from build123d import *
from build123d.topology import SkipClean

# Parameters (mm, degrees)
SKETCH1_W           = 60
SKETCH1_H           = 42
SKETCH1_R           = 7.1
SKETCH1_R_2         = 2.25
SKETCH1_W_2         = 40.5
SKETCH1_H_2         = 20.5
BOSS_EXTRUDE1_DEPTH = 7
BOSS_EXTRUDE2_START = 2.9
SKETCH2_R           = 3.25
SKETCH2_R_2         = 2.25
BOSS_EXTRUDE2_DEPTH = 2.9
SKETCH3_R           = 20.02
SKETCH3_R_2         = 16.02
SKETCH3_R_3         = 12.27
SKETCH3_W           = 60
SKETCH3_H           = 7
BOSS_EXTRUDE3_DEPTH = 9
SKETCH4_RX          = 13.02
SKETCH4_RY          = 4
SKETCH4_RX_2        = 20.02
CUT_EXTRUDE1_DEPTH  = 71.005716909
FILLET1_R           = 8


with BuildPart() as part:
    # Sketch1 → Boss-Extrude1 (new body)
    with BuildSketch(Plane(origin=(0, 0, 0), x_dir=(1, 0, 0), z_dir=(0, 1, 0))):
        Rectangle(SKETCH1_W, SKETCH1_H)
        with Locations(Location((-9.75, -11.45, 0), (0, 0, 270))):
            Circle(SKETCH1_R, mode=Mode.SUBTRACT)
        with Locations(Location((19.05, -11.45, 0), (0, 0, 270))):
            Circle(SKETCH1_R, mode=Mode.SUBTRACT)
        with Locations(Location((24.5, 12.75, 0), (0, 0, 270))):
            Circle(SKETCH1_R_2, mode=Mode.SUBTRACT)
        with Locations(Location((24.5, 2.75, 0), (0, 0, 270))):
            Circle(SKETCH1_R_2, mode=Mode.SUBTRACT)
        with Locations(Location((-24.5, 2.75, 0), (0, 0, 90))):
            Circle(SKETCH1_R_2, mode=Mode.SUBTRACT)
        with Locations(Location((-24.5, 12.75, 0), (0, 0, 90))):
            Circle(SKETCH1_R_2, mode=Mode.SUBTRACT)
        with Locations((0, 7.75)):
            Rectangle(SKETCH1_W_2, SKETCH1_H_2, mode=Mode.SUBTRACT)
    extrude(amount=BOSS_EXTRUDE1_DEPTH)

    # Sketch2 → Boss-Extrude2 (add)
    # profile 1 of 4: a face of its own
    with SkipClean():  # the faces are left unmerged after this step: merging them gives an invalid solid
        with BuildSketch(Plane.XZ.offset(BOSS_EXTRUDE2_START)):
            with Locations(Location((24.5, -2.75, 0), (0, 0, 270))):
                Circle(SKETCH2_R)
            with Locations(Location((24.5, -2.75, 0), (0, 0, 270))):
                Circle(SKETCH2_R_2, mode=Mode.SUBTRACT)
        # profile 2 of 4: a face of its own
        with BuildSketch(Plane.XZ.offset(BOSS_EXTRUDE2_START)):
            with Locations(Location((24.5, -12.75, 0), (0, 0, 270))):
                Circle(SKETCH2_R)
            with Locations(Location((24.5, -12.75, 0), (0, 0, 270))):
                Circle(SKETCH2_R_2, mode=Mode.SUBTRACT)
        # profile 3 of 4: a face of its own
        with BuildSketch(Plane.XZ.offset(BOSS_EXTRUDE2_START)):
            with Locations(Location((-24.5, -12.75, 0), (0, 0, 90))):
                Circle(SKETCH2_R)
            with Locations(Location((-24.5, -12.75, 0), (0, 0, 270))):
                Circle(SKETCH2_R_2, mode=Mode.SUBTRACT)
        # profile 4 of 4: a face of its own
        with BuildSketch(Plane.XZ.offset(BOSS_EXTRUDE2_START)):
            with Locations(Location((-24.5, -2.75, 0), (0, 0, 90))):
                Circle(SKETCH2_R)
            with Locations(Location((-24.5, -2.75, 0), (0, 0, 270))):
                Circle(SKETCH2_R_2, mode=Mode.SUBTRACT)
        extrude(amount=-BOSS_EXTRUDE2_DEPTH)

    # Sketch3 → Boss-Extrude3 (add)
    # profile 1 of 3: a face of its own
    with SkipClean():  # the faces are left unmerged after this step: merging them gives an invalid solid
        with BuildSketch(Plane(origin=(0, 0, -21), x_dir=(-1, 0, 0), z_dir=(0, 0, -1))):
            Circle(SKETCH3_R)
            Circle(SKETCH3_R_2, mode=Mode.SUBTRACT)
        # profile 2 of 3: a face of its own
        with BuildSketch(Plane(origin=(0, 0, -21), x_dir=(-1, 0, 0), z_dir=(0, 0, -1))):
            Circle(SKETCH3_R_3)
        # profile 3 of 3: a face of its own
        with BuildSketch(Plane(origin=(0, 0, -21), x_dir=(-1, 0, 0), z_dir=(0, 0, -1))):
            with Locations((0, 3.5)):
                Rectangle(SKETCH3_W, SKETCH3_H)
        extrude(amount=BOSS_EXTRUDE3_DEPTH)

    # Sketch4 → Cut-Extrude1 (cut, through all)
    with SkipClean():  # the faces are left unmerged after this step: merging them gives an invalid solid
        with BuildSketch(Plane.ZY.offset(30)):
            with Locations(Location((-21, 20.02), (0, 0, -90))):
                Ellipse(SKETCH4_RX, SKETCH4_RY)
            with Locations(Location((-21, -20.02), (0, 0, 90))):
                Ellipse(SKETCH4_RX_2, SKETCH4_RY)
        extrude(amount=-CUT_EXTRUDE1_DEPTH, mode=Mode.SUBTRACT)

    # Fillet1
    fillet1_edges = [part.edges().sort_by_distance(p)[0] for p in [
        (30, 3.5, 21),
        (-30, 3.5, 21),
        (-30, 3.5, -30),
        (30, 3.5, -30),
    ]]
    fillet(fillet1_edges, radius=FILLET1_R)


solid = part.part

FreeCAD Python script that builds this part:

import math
import FreeCAD as App
import Part
import Sketcher


def edges_at(feature, points):
    """Names of the edges that pass closest to the given points."""
    edges = feature.Shape.Edges
    near = lambda p: min(range(len(edges)), key=lambda i: edges[i].distToShape(Part.Vertex(*p))[0])
    return sorted({f"Edge{near(p) + 1}" for p in points})

doc = App.newDocument("Part")
params = doc.addObject("Spreadsheet::Sheet", "Params")
for row, (alias, value) in enumerate([
    ("sketch1_diameter", "14.2 mm"),
    ("sketch1_diameter2", "4.5 mm"),
    ("sketch1_width", "60 mm"),
    ("sketch1_height", "42 mm"),
    ("sketch1_width2", "40.5 mm"),
    ("pad1_length", "7 mm"),
    ("sketch2_diameter", "6.5 mm"),
    ("sketch2_diameter2", "4.5 mm"),
    ("pad2_length", "2.9 mm"),
    ("sketch3_height", "7 mm"),
    ("sketch3_radius", "20.02 mm"),
    ("sketch3_radius2", "16.02 mm"),
    ("sketch3_radius3", "12.27 mm"),
    ("pad3_length", "9 mm"),
    ("fillet_radius", "8 mm"),
], start=1):
    params.set(f"A{row}", alias)
    params.set(f"B{row}", "=" + value)
    params.setAlias(f"B{row}", alias)

body = doc.addObject("PartDesign::Body", "Body")

sketch1 = body.newObject("Sketcher::SketchObject", "Sketch")
sketch1.AttachmentSupport = (doc.getObject("XZ_Plane"), [""])
sketch1.MapMode = "FlatFace"
sketch1.addGeometry(Part.LineSegment(App.Vector(-30, -21, 0), App.Vector(-30, 21, 0)), False)
sketch1.addGeometry(Part.LineSegment(App.Vector(-30, 21, 0), App.Vector(30, 21, 0)), False)
sketch1.addGeometry(Part.LineSegment(App.Vector(30, 21, 0), App.Vector(30, -21, 0)), False)
sketch1.addGeometry(Part.LineSegment(App.Vector(30, -21, 0), App.Vector(-30, -21, 0)), False)
sketch1.addGeometry(Part.Circle(App.Vector(-9.8, 11.4, 0), App.Vector(0, 0, 1), 7.1), False)
sketch1.addGeometry(Part.Circle(App.Vector(19.1, 11.4, 0), App.Vector(0, 0, 1), 7.1), False)
sketch1.addGeometry(Part.Circle(App.Vector(-24.5, -2.8, 0), App.Vector(0, 0, 1), 2.2), False)
sketch1.addGeometry(Part.LineSegment(App.Vector(20.2, 2.5, 0), App.Vector(-20.2, 2.5, 0)), False)
sketch1.addGeometry(Part.LineSegment(App.Vector(-20.2, 2.5, 0), App.Vector(-20.2, -18, 0)), False)
sketch1.addGeometry(Part.LineSegment(App.Vector(-20.2, -18, 0), App.Vector(20.2, -18, 0)), False)
sketch1.addGeometry(Part.LineSegment(App.Vector(20.2, -18, 0), App.Vector(20.2, 2.5, 0)), False)
sketch1.addGeometry(Part.Circle(App.Vector(-24.5, -12.8, 0), App.Vector(0, 0, 1), 2.2), False)
sketch1.addGeometry(Part.Circle(App.Vector(24.5, -2.8, 0), App.Vector(0, 0, 1), 2.2), False)
sketch1.addGeometry(Part.Circle(App.Vector(24.5, -12.8, 0), App.Vector(0, 0, 1), 2.2), False)
sketch1.addConstraint(Sketcher.Constraint("Coincident", 0, 2, 1, 1))
sketch1.addConstraint(Sketcher.Constraint("Coincident", 1, 2, 2, 1))
sketch1.addConstraint(Sketcher.Constraint("Coincident", 2, 2, 3, 1))
sketch1.addConstraint(Sketcher.Constraint("Coincident", 3, 2, 0, 1))
sketch1.addConstraint(Sketcher.Constraint("Coincident", 7, 2, 8, 1))
sketch1.addConstraint(Sketcher.Constraint("Coincident", 8, 2, 9, 1))
sketch1.addConstraint(Sketcher.Constraint("Coincident", 9, 2, 10, 1))
sketch1.addConstraint(Sketcher.Constraint("Coincident", 10, 2, 7, 1))
sketch1.addConstraint(Sketcher.Constraint("Vertical", 0))
sketch1.addConstraint(Sketcher.Constraint("Horizontal", 1))
sketch1.addConstraint(Sketcher.Constraint("Vertical", 2))
sketch1.addConstraint(Sketcher.Constraint("Horizontal", 3))
sketch1.addConstraint(Sketcher.Constraint("Horizontal", 7))
sketch1.addConstraint(Sketcher.Constraint("Vertical", 8))
sketch1.addConstraint(Sketcher.Constraint("Horizontal", 9))
sketch1.addConstraint(Sketcher.Constraint("Vertical", 10))
sketch1.addConstraint(Sketcher.Constraint("Equal", 4, 5))
sketch1.addConstraint(Sketcher.Constraint("Equal", 6, 11))
sketch1.addConstraint(Sketcher.Constraint("Equal", 11, 12))
sketch1.addConstraint(Sketcher.Constraint("Equal", 12, 13))
sketch1.addConstraint(Sketcher.Constraint("Symmetric", 0, 2, 2, 2, -1, 1))
sketch1.addConstraint(Sketcher.Constraint("Symmetric", 6, 3, 12, 3, -2))
sketch1.addConstraint(Sketcher.Constraint("Symmetric", 11, 3, 13, 3, -2))
sketch1.addConstraint(Sketcher.Constraint("Horizontal", 4, 3, 5, 3))
sketch1.addConstraint(Sketcher.Constraint("Vertical", 6, 3, 11, 3))
sketch1.addConstraint(Sketcher.Constraint("Diameter", 4, 14.2))
sketch1.addConstraint(Sketcher.Constraint("Diameter", 6, 4.5))
sketch1.addConstraint(Sketcher.Constraint("DistanceX", 1, 1, 1, 2, 60.0))
sketch1.addConstraint(Sketcher.Constraint("DistanceY", 0, 1, 0, 2, 42.0))
sketch1.addConstraint(Sketcher.Constraint("DistanceX", 7, 2, 7, 1, 40.5))
sketch1.addConstraint(Sketcher.Constraint("DistanceY", 8, 2, 8, 1, 20.5))
sketch1.addConstraint(Sketcher.Constraint("DistanceY", 8, 2, -1, 1, 18.0))
sketch1.addConstraint(Sketcher.Constraint("DistanceY", 11, 3, 6, 3, 10.0))
sketch1.addConstraint(Sketcher.Constraint("DistanceX", 6, 3, 12, 3, 49.0))
sketch1.addConstraint(Sketcher.Constraint("DistanceX", 4, 3, 5, 3, 28.8))
sketch1.addConstraint(Sketcher.Constraint("DistanceY", 6, 3, 4, 3, 14.2))
sketch1.addConstraint(Sketcher.Constraint("DistanceX", 7, 2, 4, 3, 10.5))
sketch1.addConstraint(Sketcher.Constraint("DistanceX", 4, 3, -1, 1, 9.75))
sketch1.addConstraint(Sketcher.Constraint("DistanceY", -1, 1, 4, 3, 11.45))
sketch1.setExpression("Constraints[25]", "Params.sketch1_diameter")
sketch1.setExpression("Constraints[26]", "Params.sketch1_diameter2")
sketch1.setExpression("Constraints[27]", "Params.sketch1_width")
sketch1.setExpression("Constraints[28]", "Params.sketch1_height")
sketch1.setExpression("Constraints[29]", "Params.sketch1_width2")
pad1 = body.newObject("PartDesign::Pad", "Pad")
pad1.Profile = sketch1
pad1.setExpression("Length", "Params.pad1_length")
pad1.Reversed = True

sketch2 = body.newObject("Sketcher::SketchObject", "Sketch001")
sketch2.AttachmentSupport = (doc.getObject("XZ_Plane"), [""])
sketch2.MapMode = "FlatFace"
sketch2.AttachmentOffset = App.Placement(App.Vector(0, 0, 2.9), App.Rotation())
sketch2.addGeometry(Part.Circle(App.Vector(24.5, -2.8, 0), App.Vector(0, 0, 1), 3.2), False)
sketch2.addGeometry(Part.Circle(App.Vector(24.5, -2.8, 0), App.Vector(0, 0, 1), 2.2), False)
sketch2.addGeometry(Part.Circle(App.Vector(24.5, -12.8, 0), App.Vector(0, 0, 1), 3.2), False)
sketch2.addGeometry(Part.Circle(App.Vector(24.5, -12.8, 0), App.Vector(0, 0, 1), 2.2), False)
sketch2.addGeometry(Part.Circle(App.Vector(-24.5, -12.8, 0), App.Vector(0, 0, 1), 3.2), False)
sketch2.addGeometry(Part.Circle(App.Vector(-24.5, -12.8, 0), App.Vector(0, 0, 1), 2.2), False)
sketch2.addGeometry(Part.Circle(App.Vector(-24.5, -2.8, 0), App.Vector(0, 0, 1), 3.2), False)
sketch2.addGeometry(Part.Circle(App.Vector(-24.5, -2.8, 0), App.Vector(0, 0, 1), 2.2), False)
sketch2.addConstraint(Sketcher.Constraint("Coincident", 1, 3, 0, 3))
sketch2.addConstraint(Sketcher.Constraint("Coincident", 3, 3, 2, 3))
sketch2.addConstraint(Sketcher.Constraint("Coincident", 5, 3, 4, 3))
sketch2.addConstraint(Sketcher.Constraint("Coincident", 7, 3, 6, 3))
sketch2.addConstraint(Sketcher.Constraint("Equal", 0, 2))
sketch2.addConstraint(Sketcher.Constraint("Equal", 1, 3))
sketch2.addConstraint(Sketcher.Constraint("Equal", 2, 4))
sketch2.addConstraint(Sketcher.Constraint("Equal", 3, 5))
sketch2.addConstraint(Sketcher.Constraint("Equal", 4, 6))
sketch2.addConstraint(Sketcher.Constraint("Equal", 5, 7))
sketch2.addConstraint(Sketcher.Constraint("Symmetric", 2, 3, 4, 3, -2))
sketch2.addConstraint(Sketcher.Constraint("Symmetric", 0, 3, 6, 3, -2))
sketch2.addConstraint(Sketcher.Constraint("Vertical", 1, 3, 2, 3))
sketch2.addConstraint(Sketcher.Constraint("Diameter", 0, 6.5))
sketch2.addConstraint(Sketcher.Constraint("Diameter", 1, 4.5))
sketch2.addConstraint(Sketcher.Constraint("DistanceY", 2, 3, 0, 3, 10.0))
sketch2.addConstraint(Sketcher.Constraint("DistanceX", 4, 3, 2, 3, 49.0))
sketch2.addConstraint(Sketcher.Constraint("DistanceY", 0, 3, -1, 1, 2.75))
sketch2.setExpression("Constraints[13]", "Params.sketch2_diameter")
sketch2.setExpression("Constraints[14]", "Params.sketch2_diameter2")
pad2 = body.newObject("PartDesign::Pad", "Pad001")
pad2.Profile = sketch2
pad2.setExpression("Length", "Params.pad2_length")
pad2.Reversed = True

sketch3 = body.newObject("Sketcher::SketchObject", "Sketch002")
sketch3.AttachmentSupport = (doc.getObject("XY_Plane"), [""])
sketch3.MapMode = "FlatFace"
sketch3.AttachmentOffset = App.Placement(App.Vector(0, 0, -21), App.Rotation())
sketch3.addGeometry(Part.ArcOfCircle(Part.Circle(App.Vector(0, 0, 0), App.Vector(0, 0, 1), 20), math.radians(180), math.radians(360)), False)
sketch3.addGeometry(Part.LineSegment(App.Vector(-20, 0, 0), App.Vector(-30, 0, 0)), False)
sketch3.addGeometry(Part.LineSegment(App.Vector(-30, 0, 0), App.Vector(-30, 7, 0)), False)
sketch3.addGeometry(Part.LineSegment(App.Vector(-30, 7, 0), App.Vector(-18.8, 7, 0)), False)
sketch3.addGeometry(Part.ArcOfCircle(Part.Circle(App.Vector(0, 0, 0), App.Vector(0, 0, 1), 20), math.radians(20), math.radians(160)), False)
sketch3.addGeometry(Part.LineSegment(App.Vector(18.8, 7, 0), App.Vector(30, 7, 0)), False)
sketch3.addGeometry(Part.LineSegment(App.Vector(30, 7, 0), App.Vector(30, 0, 0)), False)
sketch3.addGeometry(Part.LineSegment(App.Vector(30, 0, 0), App.Vector(20, 0, 0)), False)
sketch3.addGeometry(Part.ArcOfCircle(Part.Circle(App.Vector(0, 0, 0), App.Vector(0, 0, 1), 16), math.radians(180), math.radians(360)), False)
sketch3.addGeometry(Part.LineSegment(App.Vector(16, 0, 0), App.Vector(12.3, 0, 0)), False)
sketch3.addGeometry(Part.ArcOfCircle(Part.Circle(App.Vector(0, 0, 0), App.Vector(0, 0, 1), 12.3), math.radians(180), math.radians(360)), False)
sketch3.addGeometry(Part.LineSegment(App.Vector(-12.3, 0, 0), App.Vector(-16, 0, 0)), False)
sketch3.addGeometry(Part.LineSegment(App.Vector(-14.4, 7, 0), App.Vector(-10.1, 7, 0)), False)
sketch3.addGeometry(Part.ArcOfCircle(Part.Circle(App.Vector(0, 0, 0), App.Vector(0, 0, 1), 12.3), math.radians(35), math.radians(145)), False)
sketch3.addGeometry(Part.LineSegment(App.Vector(10.1, 7, 0), App.Vector(14.4, 7, 0)), False)
sketch3.addGeometry(Part.ArcOfCircle(Part.Circle(App.Vector(0, 0, 0), App.Vector(0, 0, 1), 16), math.radians(26), math.radians(154)), False)
sketch3.addConstraint(Sketcher.Constraint("Coincident", 0, 1, 1, 1))
sketch3.addConstraint(Sketcher.Constraint("Coincident", 1, 2, 2, 1))
sketch3.addConstraint(Sketcher.Constraint("Coincident", 2, 2, 3, 1))
sketch3.addConstraint(Sketcher.Constraint("Coincident", 3, 2, 4, 2))
sketch3.addConstraint(Sketcher.Constraint("Coincident", 4, 1, 5, 1))
sketch3.addConstraint(Sketcher.Constraint("Coincident", 5, 2, 6, 1))
sketch3.addConstraint(Sketcher.Constraint("Coincident", 6, 2, 7, 1))
sketch3.addConstraint(Sketcher.Constraint("Coincident", 7, 2, 0, 2))
sketch3.addConstraint(Sketcher.Constraint("Coincident", 8, 2, 9, 1))
sketch3.addConstraint(Sketcher.Constraint("Coincident", 9, 2, 10, 2))
sketch3.addConstraint(Sketcher.Constraint("Coincident", 10, 1, 11, 1))
sketch3.addConstraint(Sketcher.Constraint("Coincident", 11, 2, 8, 1))
sketch3.addConstraint(Sketcher.Constraint("Coincident", 12, 2, 13, 2))
sketch3.addConstraint(Sketcher.Constraint("Coincident", 13, 1, 14, 1))
sketch3.addConstraint(Sketcher.Constraint("Coincident", 14, 2, 15, 1))
sketch3.addConstraint(Sketcher.Constraint("Coincident", 15, 2, 12, 1))
sketch3.addConstraint(Sketcher.Constraint("Horizontal", 1))
sketch3.addConstraint(Sketcher.Constraint("Vertical", 2))
sketch3.addConstraint(Sketcher.Constraint("Horizontal", 3))
sketch3.addConstraint(Sketcher.Constraint("Horizontal", 5))
sketch3.addConstraint(Sketcher.Constraint("Vertical", 6))
sketch3.addConstraint(Sketcher.Constraint("Horizontal", 7))
sketch3.addConstraint(Sketcher.Constraint("Horizontal", 9))
sketch3.addConstraint(Sketcher.Constraint("Horizontal", 11))
sketch3.addConstraint(Sketcher.Constraint("Horizontal", 12))
sketch3.addConstraint(Sketcher.Constraint("Horizontal", 14))
sketch3.addConstraint(Sketcher.Constraint("Coincident", 0, 3, -1, 1))
sketch3.addConstraint(Sketcher.Constraint("Coincident", 4, 3, -1, 1))
sketch3.addConstraint(Sketcher.Constraint("Coincident", 8, 3, -1, 1))
sketch3.addConstraint(Sketcher.Constraint("Coincident", 10, 3, -1, 1))
sketch3.addConstraint(Sketcher.Constraint("Coincident", 13, 3, -1, 1))
sketch3.addConstraint(Sketcher.Constraint("Coincident", 15, 3, -1, 1))
sketch3.addConstraint(Sketcher.Constraint("Equal", 0, 4))
sketch3.addConstraint(Sketcher.Constraint("Equal", 10, 13))
sketch3.addConstraint(Sketcher.Constraint("Equal", 8, 15))
sketch3.addConstraint(Sketcher.Constraint("Symmetric", 1, 2, 6, 2, -1, 1))
sketch3.addConstraint(Sketcher.Constraint("PointOnObject", 0, 1, -1))
sketch3.addConstraint(Sketcher.Constraint("PointOnObject", 8, 2, -1))
sketch3.addConstraint(Sketcher.Constraint("PointOnObject", 10, 1, -1))
sketch3.addConstraint(Sketcher.Constraint("Horizontal", 3, 2, 4, 1))
sketch3.addConstraint(Sketcher.Constraint("Horizontal", 5, 2, 12, 2))
sketch3.addConstraint(Sketcher.Constraint("Horizontal", 12, 2, 13, 1))
sketch3.addConstraint(Sketcher.Constraint("DistanceY", 2, 1, 2, 2, 7.0))
sketch3.addConstraint(Sketcher.Constraint("Radius", 0, 20.02))
sketch3.addConstraint(Sketcher.Constraint("Radius", 8, 16.02))
sketch3.addConstraint(Sketcher.Constraint("Radius", 10, 12.27))
sketch3.addConstraint(Sketcher.Constraint("DistanceX", 1, 2, -1, 1, 30.0))
sketch3.setExpression("Constraints[42]", "Params.sketch3_height")
sketch3.setExpression("Constraints[43]", "Params.sketch3_radius")
sketch3.setExpression("Constraints[44]", "Params.sketch3_radius2")
sketch3.setExpression("Constraints[45]", "Params.sketch3_radius3")
pad3 = body.newObject("PartDesign::Pad", "Pad002")
pad3.Profile = sketch3
pad3.setExpression("Length", "Params.pad3_length")
pad3.Reversed = True

sketch4 = body.newObject("Sketcher::SketchObject", "Sketch003")
sketch4.AttachmentSupport = (doc.getObject("YZ_Plane"), [""])
sketch4.MapMode = "FlatFace"
sketch4.AttachmentOffset = App.Placement(App.Vector(0, 0, -30), App.Rotation())
sketch4.addGeometry(Part.Ellipse(App.Vector(7, -21, 0), App.Vector(20.02, -25, 0), App.Vector(20.02, -21, 0)), False)
sketch4.addGeometry(Part.Ellipse(App.Vector(0, -21, 0), App.Vector(-20.02, -17, 0), App.Vector(-20.02, -21, 0)), False)
sketch4.addConstraint(Sketcher.Constraint("Block", 0))
sketch4.addConstraint(Sketcher.Constraint("Block", 1))
pocket1 = body.newObject("PartDesign::Pocket", "Pocket")
pocket1.Profile = sketch4
pocket1.Type = "ThroughAll"
pocket1.Reversed = True
doc.recompute()

fillet = body.newObject("PartDesign::Fillet", "Fillet")
fillet.Base = (pocket1, edges_at(pocket1, [
    (30, 3.5, 21),
    (-30, 3.5, 21),
    (-30, 3.5, -30),
    (30, 3.5, -30),
]))
fillet.setExpression("Radius", "Params.fillet_radius")

doc.recompute()
